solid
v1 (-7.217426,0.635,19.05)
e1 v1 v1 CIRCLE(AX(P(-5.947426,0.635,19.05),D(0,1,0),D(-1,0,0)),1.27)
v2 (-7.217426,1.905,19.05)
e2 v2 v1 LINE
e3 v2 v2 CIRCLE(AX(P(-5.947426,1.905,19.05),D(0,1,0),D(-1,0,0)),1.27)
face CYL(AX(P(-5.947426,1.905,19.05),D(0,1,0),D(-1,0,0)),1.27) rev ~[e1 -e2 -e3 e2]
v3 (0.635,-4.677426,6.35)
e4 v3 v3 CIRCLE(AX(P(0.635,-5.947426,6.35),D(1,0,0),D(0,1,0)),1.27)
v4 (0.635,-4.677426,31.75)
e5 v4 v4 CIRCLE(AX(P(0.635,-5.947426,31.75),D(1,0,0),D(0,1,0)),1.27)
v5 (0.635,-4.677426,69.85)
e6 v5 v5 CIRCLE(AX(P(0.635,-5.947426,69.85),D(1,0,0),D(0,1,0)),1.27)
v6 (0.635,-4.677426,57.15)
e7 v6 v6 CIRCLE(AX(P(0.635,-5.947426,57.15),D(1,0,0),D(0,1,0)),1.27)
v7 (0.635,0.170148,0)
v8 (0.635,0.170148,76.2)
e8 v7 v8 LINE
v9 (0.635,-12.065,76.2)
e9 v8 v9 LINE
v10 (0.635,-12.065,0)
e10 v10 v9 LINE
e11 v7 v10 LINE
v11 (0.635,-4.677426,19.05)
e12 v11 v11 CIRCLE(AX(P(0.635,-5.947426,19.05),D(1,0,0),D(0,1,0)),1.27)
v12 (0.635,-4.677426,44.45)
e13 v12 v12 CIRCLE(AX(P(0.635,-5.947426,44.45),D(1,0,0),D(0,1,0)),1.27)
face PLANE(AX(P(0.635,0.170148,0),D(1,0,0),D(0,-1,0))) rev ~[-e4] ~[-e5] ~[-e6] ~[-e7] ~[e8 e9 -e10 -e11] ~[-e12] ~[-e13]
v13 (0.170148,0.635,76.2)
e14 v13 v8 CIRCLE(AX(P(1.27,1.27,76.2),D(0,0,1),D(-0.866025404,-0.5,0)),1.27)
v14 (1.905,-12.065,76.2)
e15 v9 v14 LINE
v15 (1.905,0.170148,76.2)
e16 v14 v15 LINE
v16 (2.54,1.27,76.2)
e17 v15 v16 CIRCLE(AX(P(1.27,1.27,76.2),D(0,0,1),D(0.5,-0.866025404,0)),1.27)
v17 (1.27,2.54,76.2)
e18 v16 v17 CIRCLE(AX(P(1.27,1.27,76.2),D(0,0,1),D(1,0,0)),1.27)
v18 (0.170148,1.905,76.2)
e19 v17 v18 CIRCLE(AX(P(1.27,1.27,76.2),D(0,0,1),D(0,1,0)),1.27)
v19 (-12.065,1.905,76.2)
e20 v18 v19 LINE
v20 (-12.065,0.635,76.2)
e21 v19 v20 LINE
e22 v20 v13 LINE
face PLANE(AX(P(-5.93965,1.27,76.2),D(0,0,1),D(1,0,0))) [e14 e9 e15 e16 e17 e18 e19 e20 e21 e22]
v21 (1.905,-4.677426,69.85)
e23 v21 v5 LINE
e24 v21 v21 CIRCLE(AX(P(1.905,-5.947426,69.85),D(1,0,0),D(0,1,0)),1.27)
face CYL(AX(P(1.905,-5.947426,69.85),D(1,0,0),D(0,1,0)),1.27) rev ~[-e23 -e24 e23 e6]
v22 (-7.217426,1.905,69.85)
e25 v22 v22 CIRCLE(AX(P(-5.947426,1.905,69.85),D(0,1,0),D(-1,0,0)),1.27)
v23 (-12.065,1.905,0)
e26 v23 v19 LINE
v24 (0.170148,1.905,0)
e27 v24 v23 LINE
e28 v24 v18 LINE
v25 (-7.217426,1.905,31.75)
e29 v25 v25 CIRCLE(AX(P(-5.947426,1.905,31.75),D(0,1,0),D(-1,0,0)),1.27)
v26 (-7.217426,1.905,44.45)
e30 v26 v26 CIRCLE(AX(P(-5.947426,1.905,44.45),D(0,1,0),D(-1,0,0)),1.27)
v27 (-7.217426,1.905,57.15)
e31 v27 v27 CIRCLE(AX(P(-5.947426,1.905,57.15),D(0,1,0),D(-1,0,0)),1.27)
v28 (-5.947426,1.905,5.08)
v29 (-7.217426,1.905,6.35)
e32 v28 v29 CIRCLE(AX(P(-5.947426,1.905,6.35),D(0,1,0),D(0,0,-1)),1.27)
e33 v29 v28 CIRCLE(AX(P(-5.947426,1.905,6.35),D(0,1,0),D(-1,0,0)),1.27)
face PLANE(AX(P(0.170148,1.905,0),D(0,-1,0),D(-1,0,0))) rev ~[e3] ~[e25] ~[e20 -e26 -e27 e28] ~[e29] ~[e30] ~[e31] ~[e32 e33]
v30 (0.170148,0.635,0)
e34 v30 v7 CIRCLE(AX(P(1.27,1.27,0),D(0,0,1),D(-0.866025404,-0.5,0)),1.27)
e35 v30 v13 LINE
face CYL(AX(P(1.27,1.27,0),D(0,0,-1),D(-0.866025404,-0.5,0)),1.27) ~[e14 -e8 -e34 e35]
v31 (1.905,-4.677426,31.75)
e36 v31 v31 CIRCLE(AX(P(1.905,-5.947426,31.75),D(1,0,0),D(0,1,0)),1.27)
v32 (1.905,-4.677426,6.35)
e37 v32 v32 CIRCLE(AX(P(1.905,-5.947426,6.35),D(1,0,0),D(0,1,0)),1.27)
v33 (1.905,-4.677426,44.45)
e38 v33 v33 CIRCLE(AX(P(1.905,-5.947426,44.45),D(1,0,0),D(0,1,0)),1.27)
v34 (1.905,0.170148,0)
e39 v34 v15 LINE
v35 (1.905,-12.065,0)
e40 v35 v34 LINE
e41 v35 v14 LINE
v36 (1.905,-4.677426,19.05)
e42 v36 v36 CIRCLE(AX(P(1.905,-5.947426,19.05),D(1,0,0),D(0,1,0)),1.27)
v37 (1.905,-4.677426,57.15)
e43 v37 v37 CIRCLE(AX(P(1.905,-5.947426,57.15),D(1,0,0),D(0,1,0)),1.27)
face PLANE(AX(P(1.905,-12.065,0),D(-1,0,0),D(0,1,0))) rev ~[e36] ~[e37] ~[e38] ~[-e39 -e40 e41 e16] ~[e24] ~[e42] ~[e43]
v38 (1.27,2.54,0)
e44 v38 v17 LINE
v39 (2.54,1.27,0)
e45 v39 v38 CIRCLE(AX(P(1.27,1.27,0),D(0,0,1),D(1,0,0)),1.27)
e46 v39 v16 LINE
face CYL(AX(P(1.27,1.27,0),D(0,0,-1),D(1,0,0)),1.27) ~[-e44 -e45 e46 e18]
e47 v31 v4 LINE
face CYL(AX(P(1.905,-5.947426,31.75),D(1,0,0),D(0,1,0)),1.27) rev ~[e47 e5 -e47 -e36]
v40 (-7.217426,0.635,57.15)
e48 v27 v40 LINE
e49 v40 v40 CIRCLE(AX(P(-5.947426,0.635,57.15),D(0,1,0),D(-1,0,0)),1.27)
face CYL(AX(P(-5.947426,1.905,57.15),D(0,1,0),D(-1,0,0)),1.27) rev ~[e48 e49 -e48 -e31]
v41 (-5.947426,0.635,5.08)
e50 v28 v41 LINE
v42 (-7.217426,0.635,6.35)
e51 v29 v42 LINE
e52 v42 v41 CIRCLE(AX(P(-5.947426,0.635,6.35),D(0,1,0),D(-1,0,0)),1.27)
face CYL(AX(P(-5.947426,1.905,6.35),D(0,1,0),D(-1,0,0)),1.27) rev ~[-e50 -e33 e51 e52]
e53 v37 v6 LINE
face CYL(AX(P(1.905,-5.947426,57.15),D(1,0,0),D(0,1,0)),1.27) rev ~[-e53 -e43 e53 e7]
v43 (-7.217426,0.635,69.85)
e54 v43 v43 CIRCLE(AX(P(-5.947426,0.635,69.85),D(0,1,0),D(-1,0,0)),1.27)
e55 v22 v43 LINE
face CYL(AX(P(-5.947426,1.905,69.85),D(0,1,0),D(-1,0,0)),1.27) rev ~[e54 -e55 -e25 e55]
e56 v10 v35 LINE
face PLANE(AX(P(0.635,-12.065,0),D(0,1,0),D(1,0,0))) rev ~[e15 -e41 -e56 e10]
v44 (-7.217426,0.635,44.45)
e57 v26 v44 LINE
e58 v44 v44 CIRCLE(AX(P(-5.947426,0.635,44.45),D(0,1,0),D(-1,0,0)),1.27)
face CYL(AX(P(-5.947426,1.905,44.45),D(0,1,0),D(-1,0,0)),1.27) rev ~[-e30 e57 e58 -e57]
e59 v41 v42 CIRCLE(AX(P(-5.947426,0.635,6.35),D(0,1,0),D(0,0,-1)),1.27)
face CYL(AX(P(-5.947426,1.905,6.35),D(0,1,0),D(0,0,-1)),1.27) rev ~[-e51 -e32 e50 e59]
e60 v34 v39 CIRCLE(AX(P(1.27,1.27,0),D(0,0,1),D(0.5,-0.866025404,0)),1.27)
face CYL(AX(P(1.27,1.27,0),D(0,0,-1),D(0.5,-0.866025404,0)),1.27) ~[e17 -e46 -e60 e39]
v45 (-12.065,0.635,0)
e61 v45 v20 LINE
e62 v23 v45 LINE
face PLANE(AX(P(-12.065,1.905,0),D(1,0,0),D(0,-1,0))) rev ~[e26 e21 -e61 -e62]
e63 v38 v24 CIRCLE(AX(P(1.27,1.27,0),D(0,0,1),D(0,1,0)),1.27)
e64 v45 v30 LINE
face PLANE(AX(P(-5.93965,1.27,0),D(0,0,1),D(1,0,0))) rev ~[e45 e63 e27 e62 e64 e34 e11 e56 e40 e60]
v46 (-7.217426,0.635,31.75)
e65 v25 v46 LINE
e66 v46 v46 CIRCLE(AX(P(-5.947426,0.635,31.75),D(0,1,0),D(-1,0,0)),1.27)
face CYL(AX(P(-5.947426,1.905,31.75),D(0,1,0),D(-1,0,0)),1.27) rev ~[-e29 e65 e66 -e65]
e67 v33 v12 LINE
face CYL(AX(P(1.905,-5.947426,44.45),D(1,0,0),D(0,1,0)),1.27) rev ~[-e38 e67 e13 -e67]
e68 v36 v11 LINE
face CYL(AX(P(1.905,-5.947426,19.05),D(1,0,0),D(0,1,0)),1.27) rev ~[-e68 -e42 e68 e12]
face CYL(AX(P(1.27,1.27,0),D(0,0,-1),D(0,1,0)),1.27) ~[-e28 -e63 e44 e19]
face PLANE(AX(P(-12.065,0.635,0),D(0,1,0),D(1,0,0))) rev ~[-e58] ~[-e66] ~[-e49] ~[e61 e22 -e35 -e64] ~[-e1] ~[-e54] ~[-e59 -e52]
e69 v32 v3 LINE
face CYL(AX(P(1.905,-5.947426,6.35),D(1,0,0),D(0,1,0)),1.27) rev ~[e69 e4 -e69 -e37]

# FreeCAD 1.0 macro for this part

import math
import FreeCAD as App
import Part
import Sketcher
Q = App.Units.Quantity

doc = App.newDocument("Part")
params = doc.addObject("Spreadsheet::Sheet", "Params")
for row, (alias, value) in enumerate([
    ("sketch1_radius", "0.05 in"),
    ("sketch1_width", "0.05 in"),
    ("pad1_length", "3 in"),
    ("sketch2_diameter", "0.1 in"),
    ("pocket1_length", "1 in"),
    ("sketch3_diameter", "0.1 in"),
    ("pocket2_length", "1 in"),
], start=1):
    params.set(f"A{row}", alias)
    params.set(f"B{row}", "=" + value)
    params.setAlias(f"B{row}", alias)

body = doc.addObject("PartDesign::Body", "Body")

# Sketch on XY plane
sketch1 = body.newObject("Sketcher::SketchObject", "Sketch")
sketch1.AttachmentSupport = (doc.getObject("XY_Plane"), [""])
sketch1.MapMode = "FlatFace"
sketch1.addGeometry(Part.LineSegment(App.Vector(-12.1, 1.9, 0), App.Vector(-12.1, 0.6, 0)), False)
sketch1.addGeometry(Part.LineSegment(App.Vector(-12.1, 0.6, 0), App.Vector(0.2, 0.6, 0)), False)
sketch1.addGeometry(Part.ArcOfCircle(Part.Circle(App.Vector(1.3, 1.3, 0), App.Vector(0, 0, 1), 1.3), math.radians(-150), math.radians(-120)), False)
sketch1.addGeometry(Part.LineSegment(App.Vector(0.6, 0.2, 0), App.Vector(0.6, -12.1, 0)), False)
sketch1.addGeometry(Part.LineSegment(App.Vector(0.6, -12.1, 0), App.Vector(1.9, -12.1, 0)), False)
sketch1.addGeometry(Part.LineSegment(App.Vector(1.9, -12.1, 0), App.Vector(1.9, 0.2, 0)), False)
sketch1.addGeometry(Part.ArcOfCircle(Part.Circle(App.Vector(1.3, 1.3, 0), App.Vector(0, 0, 1), 1.3), math.radians(-60), math.radians(0)), False)
sketch1.addGeometry(Part.ArcOfCircle(Part.Circle(App.Vector(1.3, 1.3, 0), App.Vector(0, 0, 1), 1.3), math.radians(0), math.radians(90)), False)
sketch1.addGeometry(Part.ArcOfCircle(Part.Circle(App.Vector(1.3, 1.3, 0), App.Vector(0, 0, 1), 1.3), math.radians(90), math.radians(150)), False)
sketch1.addGeometry(Part.LineSegment(App.Vector(0.2, 1.9, 0), App.Vector(-12.1, 1.9, 0)), False)
sketch1.addConstraint(Sketcher.Constraint("Coincident", 0, 2, 1, 1))
sketch1.addConstraint(Sketcher.Constraint("Coincident", 1, 2, 2, 1))
sketch1.addConstraint(Sketcher.Constraint("Coincident", 2, 2, 3, 1))
sketch1.addConstraint(Sketcher.Constraint("Coincident", 3, 2, 4, 1))
sketch1.addConstraint(Sketcher.Constraint("Coincident", 4, 2, 5, 1))
sketch1.addConstraint(Sketcher.Constraint("Coincident", 5, 2, 6, 1))
sketch1.addConstraint(Sketcher.Constraint("Tangent", 6, 2, 7, 1))
sketch1.addConstraint(Sketcher.Constraint("Tangent", 7, 2, 8, 1))
sketch1.addConstraint(Sketcher.Constraint("Coincident", 8, 2, 9, 1))
sketch1.addConstraint(Sketcher.Constraint("Coincident", 9, 2, 0, 1))
sketch1.addConstraint(Sketcher.Constraint("Vertical", 0))
sketch1.addConstraint(Sketcher.Constraint("Horizontal", 1))
sketch1.addConstraint(Sketcher.Constraint("Vertical", 3))
sketch1.addConstraint(Sketcher.Constraint("Horizontal", 4))
sketch1.addConstraint(Sketcher.Constraint("Vertical", 5))
sketch1.addConstraint(Sketcher.Constraint("Horizontal", 9))
sketch1.addConstraint(Sketcher.Constraint("Coincident", 6, 3, 2, 3))
sketch1.addConstraint(Sketcher.Constraint("Coincident", 8, 3, 2, 3))
sketch1.addConstraint(Sketcher.Constraint("Equal", 2, 6))
sketch1.addConstraint(Sketcher.Constraint("Horizontal", 2, 2, 5, 2))
sketch1.addConstraint(Sketcher.Constraint("Horizontal", 8, 3, 6, 2))
sketch1.addConstraint(Sketcher.Constraint("Vertical", 8, 3, 7, 2))
sketch1.addConstraint(Sketcher.Constraint("Vertical", 1, 2, 8, 2))
sketch1.addConstraint(Sketcher.Constraint("Equal", 4, 0))
sketch1.addConstraint(Sketcher.Constraint("Equal", 9, 3))
sketch1.addConstraint(Sketcher.Constraint("Radius", 2, Q("0.05 in")))
sketch1.addConstraint(Sketcher.Constraint("DistanceX", 4, 1, 4, 2, Q("0.05 in")))
sketch1.addConstraint(Sketcher.Constraint("DistanceX", -1, 1, 6, 2, Q("0.1 in")))
sketch1.addConstraint(Sketcher.Constraint("DistanceY", -1, 1, 7, 2, Q("0.1 in")))
sketch1.addConstraint(Sketcher.Constraint("DistanceY", 3, 2, 1, 2, Q("0.5 in")))
sketch1.setExpression("Constraints[25]", "Params.sketch1_radius")
sketch1.setExpression("Constraints[26]", "Params.sketch1_width")
pad1 = body.newObject("PartDesign::Pad", "Pad")
pad1.Profile = sketch1
pad1.setExpression("Length", "Params.pad1_length")

# Sketch on YZ plane
sketch2 = body.newObject("Sketcher::SketchObject", "Sketch001")
sketch2.AttachmentSupport = (doc.getObject("YZ_Plane"), [""])
sketch2.MapMode = "FlatFace"
sketch2.AttachmentOffset = App.Placement(App.Vector(0, 0, 0.075 * 25.4), App.Rotation())
sketch2.addGeometry(Part.Circle(App.Vector(-5.9, 69.8, 0), App.Vector(0, 0, 1), 1.3), False)
sketch2.addGeometry(Part.Circle(App.Vector(-5.9, 57.1, 0), App.Vector(0, 0, 1), 1.3), False)
sketch2.addGeometry(Part.Circle(App.Vector(-5.9, 44.5, 0), App.Vector(0, 0, 1), 1.3), False)
sketch2.addGeometry(Part.Circle(App.Vector(-5.9, 31.8, 0), App.Vector(0, 0, 1), 1.3), False)
sketch2.addGeometry(Part.Circle(App.Vector(-5.9, 19.1, 0), App.Vector(0, 0, 1), 1.3), False)
sketch2.addGeometry(Part.Circle(App.Vector(-5.9, 6.3, 0), App.Vector(0, 0, 1), 1.3), False)
sketch2.addConstraint(Sketcher.Constraint("Equal", 0, 1))
sketch2.addConstraint(Sketcher.Constraint("Equal", 1, 2))
sketch2.addConstraint(Sketcher.Constraint("Equal", 2, 3))
sketch2.addConstraint(Sketcher.Constraint("Equal", 3, 4))
sketch2.addConstraint(Sketcher.Constraint("Equal", 4, 5))
sketch2.addConstraint(Sketcher.Constraint("Vertical", 0, 3, 1, 3))
sketch2.addConstraint(Sketcher.Constraint("Vertical", 1, 3, 2, 3))
sketch2.addConstraint(Sketcher.Constraint("Vertical", 2, 3, 3, 3))
sketch2.addConstraint(Sketcher.Constraint("Vertical", 3, 3, 4, 3))
sketch2.addConstraint(Sketcher.Constraint("Vertical", 4, 3, 5, 3))
sketch2.addConstraint(Sketcher.Constraint("Diameter", 0, Q("0.1 in")))
sketch2.addConstraint(Sketcher.Constraint("DistanceY", 2, 3, 0, 3, Q("1 in")))
sketch2.addConstraint(Sketcher.Constraint("DistanceY", 3, 3, 1, 3, Q("1 in")))
sketch2.addConstraint(Sketcher.Constraint("DistanceY", 4, 3, 2, 3, Q("1 in")))
sketch2.addConstraint(Sketcher.Constraint("DistanceY", 5, 3, 3, 3, Q("1 in")))
sketch2.addConstraint(Sketcher.Constraint("DistanceY", 1, 3, 0, 3, Q("0.5 in")))
sketch2.addConstraint(Sketcher.Constraint("DistanceY", -1, 1, 0, 3, Q("2.75 in")))
sketch2.addConstraint(Sketcher.Constraint("DistanceX", 0, 3, -1, 1, 5.947426))
sketch2.setExpression("Constraints[10]", "Params.sketch2_diameter")
pocket1 = body.newObject("PartDesign::Pocket", "Pocket")
pocket1.Profile = sketch2
pocket1.setExpression("Length", "Params.pocket1_length")

# Sketch on XZ plane
sketch3 = body.newObject("Sketcher::SketchObject", "Sketch002")
sketch3.AttachmentSupport = (doc.getObject("XZ_Plane"), [""])
sketch3.MapMode = "FlatFace"
sketch3.AttachmentOffset = App.Placement(App.Vector(0, 0, -0.075 * 25.4), App.Rotation())
sketch3.addGeometry(Part.Circle(App.Vector(-5.9, 69.8, 0), App.Vector(0, 0, 1), 1.3), False)
sketch3.addGeometry(Part.Circle(App.Vector(-5.9, 57.1, 0), App.Vector(0, 0, 1), 1.3), False)
sketch3.addGeometry(Part.Circle(App.Vector(-5.9, 44.5, 0), App.Vector(0, 0, 1), 1.3), False)
sketch3.addGeometry(Part.Circle(App.Vector(-5.9, 31.8, 0), App.Vector(0, 0, 1), 1.3), False)
sketch3.addGeometry(Part.Circle(App.Vector(-5.9, 19.1, 0), App.Vector(0, 0, 1), 1.3), False)
sketch3.addGeometry(Part.ArcOfCircle(Part.Circle(App.Vector(-5.9, 6.3, 0), App.Vector(0, 0, 1), 1.3), math.radians(-90), math.radians(180)), False)
sketch3.addGeometry(Part.ArcOfCircle(Part.Circle(App.Vector(-5.9, 6.3, 0), App.Vector(0, 0, 1), 1.3), math.radians(180), math.radians(270)), False)
sketch3.addConstraint(Sketcher.Constraint("Tangent", 5, 1, 6, 2))
sketch3.addConstraint(Sketcher.Constraint("Coincident", 6, 1, 5, 2))
sketch3.addConstraint(Sketcher.Constraint("Equal", 0, 1))
sketch3.addConstraint(Sketcher.Constraint("Equal", 1, 2))
sketch3.addConstraint(Sketcher.Constraint("Equal", 2, 3))
sketch3.addConstraint(Sketcher.Constraint("Equal", 3, 4))
sketch3.addConstraint(Sketcher.Constraint("Equal", 4, 5))
sketch3.addConstraint(Sketcher.Constraint("Horizontal", 5, 3, 6, 1))
sketch3.addConstraint(Sketcher.Constraint("Vertical", 0, 3, 1, 3))
sketch3.addConstraint(Sketcher.Constraint("Vertical", 1, 3, 2, 3))
sketch3.addConstraint(Sketcher.Constraint("Vertical", 2, 3, 3, 3))
sketch3.addConstraint(Sketcher.Constraint("Vertical", 3, 3, 4, 3))
sketch3.addConstraint(Sketcher.Constraint("Vertical", 4, 3, 5, 3))
sketch3.addConstraint(Sketcher.Constraint("Vertical", 6, 3, 5, 1))
sketch3.addConstraint(Sketcher.Constraint("Diameter", 0, Q("0.1 in")))
sketch3.addConstraint(Sketcher.Constraint("DistanceY", 2, 3, 0, 3, Q("1 in")))
sketch3.addConstraint(Sketcher.Constraint("DistanceY", 3, 3, 1, 3, Q("1 in")))
sketch3.addConstraint(Sketcher.Constraint("DistanceY", 4, 3, 2, 3, Q("1 in")))
sketch3.addConstraint(Sketcher.Constraint("DistanceY", 5, 3, 3, 3, Q("1 in")))
sketch3.addConstraint(Sketcher.Constraint("DistanceY", -1, 1, 5, 1, Q("0.2 in")))
sketch3.addConstraint(Sketcher.Constraint("DistanceY", 1, 3, 0, 3, Q("0.5 in")))
sketch3.addConstraint(Sketcher.Constraint("DistanceX", 0, 3, -1, 1, 5.947426))
sketch3.setExpression("Constraints[14]", "Params.sketch3_diameter")
pocket2 = body.newObject("PartDesign::Pocket", "Pocket001")
pocket2.Profile = sketch3
pocket2.setExpression("Length", "Params.pocket2_length")
pocket2.Reversed = True

doc.recompute()
